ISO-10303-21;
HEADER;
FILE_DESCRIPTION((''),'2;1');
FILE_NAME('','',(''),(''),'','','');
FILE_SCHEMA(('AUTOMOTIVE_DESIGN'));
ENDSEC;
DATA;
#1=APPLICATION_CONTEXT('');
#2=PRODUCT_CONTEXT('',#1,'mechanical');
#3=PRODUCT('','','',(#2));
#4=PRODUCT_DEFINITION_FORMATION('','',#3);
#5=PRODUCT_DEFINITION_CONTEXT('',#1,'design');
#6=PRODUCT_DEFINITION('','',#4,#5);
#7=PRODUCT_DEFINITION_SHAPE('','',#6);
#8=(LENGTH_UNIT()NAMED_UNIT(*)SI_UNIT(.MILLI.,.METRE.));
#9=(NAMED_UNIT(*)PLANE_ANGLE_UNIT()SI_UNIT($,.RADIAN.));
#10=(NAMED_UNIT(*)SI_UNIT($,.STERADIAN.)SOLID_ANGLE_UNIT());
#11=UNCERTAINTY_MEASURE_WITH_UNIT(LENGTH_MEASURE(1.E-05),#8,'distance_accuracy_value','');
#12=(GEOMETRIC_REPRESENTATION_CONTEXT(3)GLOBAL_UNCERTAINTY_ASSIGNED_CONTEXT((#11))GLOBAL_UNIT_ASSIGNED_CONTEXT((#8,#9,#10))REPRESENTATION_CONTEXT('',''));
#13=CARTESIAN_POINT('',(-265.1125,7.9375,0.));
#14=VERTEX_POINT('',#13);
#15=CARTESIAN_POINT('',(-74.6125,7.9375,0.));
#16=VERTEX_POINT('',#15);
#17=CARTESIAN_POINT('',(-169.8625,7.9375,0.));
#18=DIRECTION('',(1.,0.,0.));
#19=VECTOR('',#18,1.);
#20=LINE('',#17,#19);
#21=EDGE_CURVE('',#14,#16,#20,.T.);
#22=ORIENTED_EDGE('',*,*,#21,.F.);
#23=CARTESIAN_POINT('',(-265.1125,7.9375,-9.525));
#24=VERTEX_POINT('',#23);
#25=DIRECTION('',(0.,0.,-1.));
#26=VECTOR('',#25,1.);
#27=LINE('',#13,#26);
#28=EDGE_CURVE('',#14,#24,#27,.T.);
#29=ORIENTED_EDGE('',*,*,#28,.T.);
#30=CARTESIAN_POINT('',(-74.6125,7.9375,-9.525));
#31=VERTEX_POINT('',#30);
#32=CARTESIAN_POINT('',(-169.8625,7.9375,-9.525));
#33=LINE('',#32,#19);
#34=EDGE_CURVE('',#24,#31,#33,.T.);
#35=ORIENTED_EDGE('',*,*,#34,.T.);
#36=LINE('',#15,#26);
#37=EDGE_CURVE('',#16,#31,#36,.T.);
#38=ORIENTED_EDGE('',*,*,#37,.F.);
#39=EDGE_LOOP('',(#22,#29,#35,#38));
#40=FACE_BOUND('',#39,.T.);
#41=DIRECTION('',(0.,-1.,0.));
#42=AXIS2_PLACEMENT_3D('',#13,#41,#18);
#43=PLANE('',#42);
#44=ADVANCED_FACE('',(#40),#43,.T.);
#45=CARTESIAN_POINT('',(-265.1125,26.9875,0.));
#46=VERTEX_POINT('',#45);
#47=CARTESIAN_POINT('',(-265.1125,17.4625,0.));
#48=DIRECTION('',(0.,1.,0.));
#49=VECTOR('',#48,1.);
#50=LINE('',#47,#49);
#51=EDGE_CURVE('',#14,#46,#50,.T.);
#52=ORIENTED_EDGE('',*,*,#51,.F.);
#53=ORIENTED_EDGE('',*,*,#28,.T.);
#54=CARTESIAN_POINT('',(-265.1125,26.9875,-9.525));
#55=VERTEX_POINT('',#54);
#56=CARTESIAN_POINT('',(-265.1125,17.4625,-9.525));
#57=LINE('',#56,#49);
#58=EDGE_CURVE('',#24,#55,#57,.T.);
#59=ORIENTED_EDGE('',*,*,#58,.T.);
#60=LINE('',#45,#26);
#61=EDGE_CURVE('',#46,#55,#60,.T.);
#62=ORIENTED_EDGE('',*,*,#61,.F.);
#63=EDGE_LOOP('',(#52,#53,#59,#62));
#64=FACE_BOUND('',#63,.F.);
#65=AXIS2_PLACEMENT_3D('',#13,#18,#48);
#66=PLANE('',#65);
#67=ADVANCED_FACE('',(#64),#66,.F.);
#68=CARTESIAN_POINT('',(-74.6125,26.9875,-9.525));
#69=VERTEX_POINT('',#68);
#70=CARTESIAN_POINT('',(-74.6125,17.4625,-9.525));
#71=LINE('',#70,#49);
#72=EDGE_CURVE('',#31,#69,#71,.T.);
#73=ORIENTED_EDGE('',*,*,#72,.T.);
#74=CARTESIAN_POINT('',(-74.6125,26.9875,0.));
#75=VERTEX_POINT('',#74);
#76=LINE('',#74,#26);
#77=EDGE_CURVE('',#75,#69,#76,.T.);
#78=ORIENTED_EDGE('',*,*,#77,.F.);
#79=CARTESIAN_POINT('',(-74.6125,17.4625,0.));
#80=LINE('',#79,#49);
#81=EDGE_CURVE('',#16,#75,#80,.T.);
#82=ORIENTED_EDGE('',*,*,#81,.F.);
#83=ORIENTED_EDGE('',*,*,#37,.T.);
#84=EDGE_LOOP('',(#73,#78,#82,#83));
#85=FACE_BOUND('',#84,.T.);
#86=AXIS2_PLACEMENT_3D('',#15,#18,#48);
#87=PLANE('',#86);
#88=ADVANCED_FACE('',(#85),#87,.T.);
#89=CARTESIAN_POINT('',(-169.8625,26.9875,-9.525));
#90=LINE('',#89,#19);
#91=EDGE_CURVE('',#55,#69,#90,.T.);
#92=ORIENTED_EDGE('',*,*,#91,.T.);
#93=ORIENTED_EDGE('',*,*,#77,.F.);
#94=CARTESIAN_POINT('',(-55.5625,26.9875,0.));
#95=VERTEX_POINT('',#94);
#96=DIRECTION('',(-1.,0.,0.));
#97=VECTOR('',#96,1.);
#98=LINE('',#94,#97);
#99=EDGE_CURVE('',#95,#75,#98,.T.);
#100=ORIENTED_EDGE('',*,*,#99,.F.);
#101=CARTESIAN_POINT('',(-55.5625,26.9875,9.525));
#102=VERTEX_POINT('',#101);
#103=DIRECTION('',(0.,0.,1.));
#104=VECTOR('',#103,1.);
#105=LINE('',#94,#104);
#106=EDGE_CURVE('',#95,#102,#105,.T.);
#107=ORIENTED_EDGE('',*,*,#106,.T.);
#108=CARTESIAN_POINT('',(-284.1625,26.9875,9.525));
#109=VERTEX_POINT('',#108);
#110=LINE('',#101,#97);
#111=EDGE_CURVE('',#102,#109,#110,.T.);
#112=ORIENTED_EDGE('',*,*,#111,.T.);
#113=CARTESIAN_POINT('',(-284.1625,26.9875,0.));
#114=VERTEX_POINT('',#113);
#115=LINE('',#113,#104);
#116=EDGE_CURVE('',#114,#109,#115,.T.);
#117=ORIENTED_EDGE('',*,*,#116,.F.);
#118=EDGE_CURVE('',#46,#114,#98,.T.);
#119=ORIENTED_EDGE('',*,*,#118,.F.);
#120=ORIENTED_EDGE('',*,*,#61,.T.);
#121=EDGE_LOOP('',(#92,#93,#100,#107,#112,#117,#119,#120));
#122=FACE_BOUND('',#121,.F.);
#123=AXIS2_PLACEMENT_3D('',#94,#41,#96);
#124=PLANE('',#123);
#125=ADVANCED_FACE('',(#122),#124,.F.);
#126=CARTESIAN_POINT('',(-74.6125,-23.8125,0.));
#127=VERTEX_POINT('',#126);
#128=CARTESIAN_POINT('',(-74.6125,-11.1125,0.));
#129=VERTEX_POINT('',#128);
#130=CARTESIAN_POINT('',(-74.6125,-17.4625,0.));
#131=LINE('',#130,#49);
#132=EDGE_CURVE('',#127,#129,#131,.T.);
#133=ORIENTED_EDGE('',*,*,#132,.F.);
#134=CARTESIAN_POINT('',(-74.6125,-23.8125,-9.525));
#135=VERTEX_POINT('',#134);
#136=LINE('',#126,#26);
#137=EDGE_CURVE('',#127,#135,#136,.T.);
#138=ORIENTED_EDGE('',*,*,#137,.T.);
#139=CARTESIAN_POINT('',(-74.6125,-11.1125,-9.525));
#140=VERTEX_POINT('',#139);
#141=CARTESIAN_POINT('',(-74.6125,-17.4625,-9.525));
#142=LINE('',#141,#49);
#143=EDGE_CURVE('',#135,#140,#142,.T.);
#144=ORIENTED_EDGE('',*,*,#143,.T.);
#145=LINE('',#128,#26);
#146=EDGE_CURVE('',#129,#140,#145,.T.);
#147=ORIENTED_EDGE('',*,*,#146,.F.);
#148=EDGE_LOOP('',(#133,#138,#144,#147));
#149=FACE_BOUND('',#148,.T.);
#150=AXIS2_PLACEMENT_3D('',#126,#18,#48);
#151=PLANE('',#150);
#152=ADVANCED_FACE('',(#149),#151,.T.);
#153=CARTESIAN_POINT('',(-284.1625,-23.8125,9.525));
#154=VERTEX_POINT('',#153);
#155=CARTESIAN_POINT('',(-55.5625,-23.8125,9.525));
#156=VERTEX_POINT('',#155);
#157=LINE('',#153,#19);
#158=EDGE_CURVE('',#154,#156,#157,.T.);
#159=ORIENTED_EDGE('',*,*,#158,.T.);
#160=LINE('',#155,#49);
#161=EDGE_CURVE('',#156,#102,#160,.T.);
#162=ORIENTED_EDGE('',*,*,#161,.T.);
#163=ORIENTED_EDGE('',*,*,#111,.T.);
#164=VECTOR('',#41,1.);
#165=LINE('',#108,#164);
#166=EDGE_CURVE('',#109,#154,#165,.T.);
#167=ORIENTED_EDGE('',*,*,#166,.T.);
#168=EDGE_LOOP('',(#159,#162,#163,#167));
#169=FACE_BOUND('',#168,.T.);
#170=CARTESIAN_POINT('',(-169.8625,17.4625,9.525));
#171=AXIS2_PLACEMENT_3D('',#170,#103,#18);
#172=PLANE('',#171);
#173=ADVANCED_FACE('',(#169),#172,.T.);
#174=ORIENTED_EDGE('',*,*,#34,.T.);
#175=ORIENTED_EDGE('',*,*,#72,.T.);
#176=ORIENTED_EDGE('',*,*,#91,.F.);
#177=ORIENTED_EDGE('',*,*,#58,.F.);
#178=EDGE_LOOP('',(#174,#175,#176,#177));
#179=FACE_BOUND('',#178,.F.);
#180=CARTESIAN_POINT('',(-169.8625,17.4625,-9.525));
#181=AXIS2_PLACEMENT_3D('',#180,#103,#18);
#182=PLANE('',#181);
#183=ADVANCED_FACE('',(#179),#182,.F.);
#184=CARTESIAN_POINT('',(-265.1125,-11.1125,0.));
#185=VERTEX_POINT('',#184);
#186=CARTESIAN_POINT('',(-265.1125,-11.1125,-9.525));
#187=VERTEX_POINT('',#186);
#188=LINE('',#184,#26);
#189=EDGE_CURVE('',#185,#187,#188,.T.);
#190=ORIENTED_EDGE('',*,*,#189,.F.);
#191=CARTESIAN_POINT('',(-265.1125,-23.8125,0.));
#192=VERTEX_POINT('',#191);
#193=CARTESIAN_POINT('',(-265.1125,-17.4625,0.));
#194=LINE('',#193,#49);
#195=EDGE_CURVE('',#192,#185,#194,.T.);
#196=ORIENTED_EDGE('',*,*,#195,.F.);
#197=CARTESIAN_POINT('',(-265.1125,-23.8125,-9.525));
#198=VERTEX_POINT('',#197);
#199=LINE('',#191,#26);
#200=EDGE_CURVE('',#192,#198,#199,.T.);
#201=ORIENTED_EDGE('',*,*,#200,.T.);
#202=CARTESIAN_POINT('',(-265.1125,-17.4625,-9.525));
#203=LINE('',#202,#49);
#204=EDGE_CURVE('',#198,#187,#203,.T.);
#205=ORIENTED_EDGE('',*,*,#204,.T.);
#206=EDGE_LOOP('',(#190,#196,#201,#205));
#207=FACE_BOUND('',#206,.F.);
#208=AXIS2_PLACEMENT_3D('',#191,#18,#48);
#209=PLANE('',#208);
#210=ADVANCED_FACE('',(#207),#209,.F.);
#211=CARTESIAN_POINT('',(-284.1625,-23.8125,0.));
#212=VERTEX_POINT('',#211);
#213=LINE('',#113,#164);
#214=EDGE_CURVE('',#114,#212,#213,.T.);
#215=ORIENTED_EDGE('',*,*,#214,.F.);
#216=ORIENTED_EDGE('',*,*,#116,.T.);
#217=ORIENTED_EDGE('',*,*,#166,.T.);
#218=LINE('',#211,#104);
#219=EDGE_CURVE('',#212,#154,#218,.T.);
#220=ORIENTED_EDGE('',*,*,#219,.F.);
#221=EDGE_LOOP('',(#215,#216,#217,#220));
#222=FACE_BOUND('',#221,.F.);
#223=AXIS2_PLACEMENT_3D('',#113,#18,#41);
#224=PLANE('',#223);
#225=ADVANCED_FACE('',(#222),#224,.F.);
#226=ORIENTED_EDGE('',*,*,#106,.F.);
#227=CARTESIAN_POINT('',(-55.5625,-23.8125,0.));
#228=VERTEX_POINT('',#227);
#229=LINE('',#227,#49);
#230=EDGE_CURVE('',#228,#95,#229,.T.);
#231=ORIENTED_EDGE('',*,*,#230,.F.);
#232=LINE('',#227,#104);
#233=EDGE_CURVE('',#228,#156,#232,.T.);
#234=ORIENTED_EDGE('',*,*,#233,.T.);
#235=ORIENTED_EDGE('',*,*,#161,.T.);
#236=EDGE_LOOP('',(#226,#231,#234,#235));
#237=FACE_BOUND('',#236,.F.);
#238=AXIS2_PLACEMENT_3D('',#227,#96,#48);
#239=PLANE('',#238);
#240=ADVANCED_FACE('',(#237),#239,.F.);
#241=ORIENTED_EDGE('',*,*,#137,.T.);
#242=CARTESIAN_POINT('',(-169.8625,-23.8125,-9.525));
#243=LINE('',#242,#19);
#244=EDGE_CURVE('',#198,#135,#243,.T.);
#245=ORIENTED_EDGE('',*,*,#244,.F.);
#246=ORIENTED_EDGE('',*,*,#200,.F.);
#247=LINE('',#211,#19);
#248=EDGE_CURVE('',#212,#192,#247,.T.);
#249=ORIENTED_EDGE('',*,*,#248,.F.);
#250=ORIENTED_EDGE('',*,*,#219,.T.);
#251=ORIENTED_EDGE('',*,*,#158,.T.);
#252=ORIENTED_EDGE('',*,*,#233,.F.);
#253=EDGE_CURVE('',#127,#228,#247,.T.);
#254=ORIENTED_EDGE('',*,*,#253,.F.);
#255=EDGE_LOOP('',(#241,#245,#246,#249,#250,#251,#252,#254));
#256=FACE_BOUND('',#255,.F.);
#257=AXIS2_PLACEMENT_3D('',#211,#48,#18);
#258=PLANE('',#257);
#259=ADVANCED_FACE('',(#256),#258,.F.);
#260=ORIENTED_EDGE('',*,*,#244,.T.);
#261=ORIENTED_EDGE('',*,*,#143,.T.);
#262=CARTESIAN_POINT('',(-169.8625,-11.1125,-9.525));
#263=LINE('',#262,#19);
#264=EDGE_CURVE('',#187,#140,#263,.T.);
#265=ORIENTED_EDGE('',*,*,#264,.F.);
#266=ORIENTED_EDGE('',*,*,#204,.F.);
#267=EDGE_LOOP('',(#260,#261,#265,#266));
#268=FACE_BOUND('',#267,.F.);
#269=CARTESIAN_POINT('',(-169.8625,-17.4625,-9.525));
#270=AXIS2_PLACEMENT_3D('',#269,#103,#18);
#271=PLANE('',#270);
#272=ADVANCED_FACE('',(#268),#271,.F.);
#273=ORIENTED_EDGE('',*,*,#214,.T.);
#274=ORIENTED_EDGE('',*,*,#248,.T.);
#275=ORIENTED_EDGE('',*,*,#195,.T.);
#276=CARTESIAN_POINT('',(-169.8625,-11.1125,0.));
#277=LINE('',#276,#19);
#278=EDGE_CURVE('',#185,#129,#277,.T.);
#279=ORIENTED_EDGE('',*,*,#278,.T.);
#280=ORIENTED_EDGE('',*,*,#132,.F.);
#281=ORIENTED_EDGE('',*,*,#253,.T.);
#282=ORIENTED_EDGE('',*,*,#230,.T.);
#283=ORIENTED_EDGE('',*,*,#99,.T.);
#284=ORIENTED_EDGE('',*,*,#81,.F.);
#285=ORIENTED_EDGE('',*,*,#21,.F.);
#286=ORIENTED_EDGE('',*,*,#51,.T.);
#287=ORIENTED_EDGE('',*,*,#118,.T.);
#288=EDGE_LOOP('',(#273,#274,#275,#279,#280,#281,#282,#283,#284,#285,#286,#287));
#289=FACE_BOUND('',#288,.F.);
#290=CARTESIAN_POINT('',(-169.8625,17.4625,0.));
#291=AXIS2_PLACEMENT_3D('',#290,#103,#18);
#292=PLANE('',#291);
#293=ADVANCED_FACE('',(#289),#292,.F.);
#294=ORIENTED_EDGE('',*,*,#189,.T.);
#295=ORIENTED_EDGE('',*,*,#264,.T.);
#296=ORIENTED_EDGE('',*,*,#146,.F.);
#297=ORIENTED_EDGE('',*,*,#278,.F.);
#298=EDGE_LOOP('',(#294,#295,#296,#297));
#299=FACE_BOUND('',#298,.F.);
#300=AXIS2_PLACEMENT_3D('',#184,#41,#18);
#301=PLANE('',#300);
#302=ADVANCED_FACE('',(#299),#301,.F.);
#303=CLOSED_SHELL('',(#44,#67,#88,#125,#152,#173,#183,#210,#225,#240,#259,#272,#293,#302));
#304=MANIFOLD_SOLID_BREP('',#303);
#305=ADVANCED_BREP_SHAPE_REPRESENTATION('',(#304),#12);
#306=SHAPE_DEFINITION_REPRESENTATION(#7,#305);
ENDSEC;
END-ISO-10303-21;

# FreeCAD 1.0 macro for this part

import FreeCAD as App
import Part
import Sketcher
from FreeCAD import Vector
Q = App.Units.Quantity


def add_polygon(sketch, points):
    """Adds a closed chain of lines whose ends are joined by coincident constraints."""
    first, n = sketch.GeometryCount, len(points)
    for a, b in zip(points, points[1:] + points[:1]):
        sketch.addGeometry(Part.LineSegment(App.Vector(*a, 0), App.Vector(*b, 0)), False)
    for i in range(n):
        sketch.addConstraint(Sketcher.Constraint("Coincident", first + i, 2, first + (i + 1) % n, 1))

doc = App.newDocument("Part")
body = doc.addObject("PartDesign::Body", "Body")

# Sketch on XY plane
sketch1 = body.newObject("Sketcher::SketchObject", "Sketch")
sketch1.AttachmentSupport = (doc.getObject("XY_Plane"), [""])
sketch1.MapMode = "FlatFace"
add_polygon(sketch1, [(-284, 27), (-284, -24), (-56, -24), (-56, 27)])  # lines 0-3
sketch1.addConstraint([
    Sketcher.Constraint("Vertical", 0),
    Sketcher.Constraint("Horizontal", 1),
    Sketcher.Constraint("Vertical", 2),
    Sketcher.Constraint("Horizontal", 3),
    Sketcher.Constraint("DistanceX", 1, 1, 1, 2, Q("9 in")),
    Sketcher.Constraint("DistanceY", 0, 2, 0, 1, Q("2 in")),
    Sketcher.Constraint("DistanceX", 0, 2, -1, 1, Q("11.1875 in")),
    Sketcher.Constraint("DistanceY", 0, 2, -1, 1, Q("0.9375 in")),
])
pad1 = body.newObject("PartDesign::Pad", "Pad")
pad1.Profile = sketch1
pad1.Length = Q("0.375 in")

# Sketch on XY plane
sketch2 = body.newObject("Sketcher::SketchObject", "Sketch001")
sketch2.AttachmentSupport = (doc.getObject("XY_Plane"), [""])
sketch2.MapMode = "FlatFace"
add_polygon(sketch2, [(-265, 27), (-265, 8), (-75, 8), (-75, 27)])  # lines 0-3
add_polygon(sketch2, [(-265, -11), (-265, -24), (-75, -24), (-75, -11)])  # lines 4-7
sketch2.addConstraint([
    Sketcher.Constraint("Vertical", 0),
    Sketcher.Constraint("Horizontal", 1),
    Sketcher.Constraint("Vertical", 2),
    Sketcher.Constraint("Horizontal", 3),
    Sketcher.Constraint("Vertical", 4),
    Sketcher.Constraint("Horizontal", 5),
    Sketcher.Constraint("Vertical", 6),
    Sketcher.Constraint("Horizontal", 7),
    Sketcher.Constraint("Vertical", 3, 2, 4, 2),
    Sketcher.Constraint("Vertical", 2, 2, 5, 2),
    Sketcher.Constraint("DistanceX", 1, 1, 1, 2, Q("7.5 in")),
    Sketcher.Constraint("DistanceY", 4, 2, 4, 1, Q("0.5 in")),
    Sketcher.Constraint("DistanceY", 4, 2, 3, 2, Q("2 in")),
    Sketcher.Constraint("DistanceY", 0, 2, 0, 1, Q("0.75 in")),
    Sketcher.Constraint("DistanceX", 0, 2, -1, 1, Q("10.4375 in")),
    Sketcher.Constraint("DistanceY", -1, 1, 0, 2, Q("0.3125 in")),
])
pad2 = body.newObject("PartDesign::Pad", "Pad001")
pad2.Profile = sketch2
pad2.Length = Q("0.375 in")
pad2.Reversed = True

doc.recompute()
